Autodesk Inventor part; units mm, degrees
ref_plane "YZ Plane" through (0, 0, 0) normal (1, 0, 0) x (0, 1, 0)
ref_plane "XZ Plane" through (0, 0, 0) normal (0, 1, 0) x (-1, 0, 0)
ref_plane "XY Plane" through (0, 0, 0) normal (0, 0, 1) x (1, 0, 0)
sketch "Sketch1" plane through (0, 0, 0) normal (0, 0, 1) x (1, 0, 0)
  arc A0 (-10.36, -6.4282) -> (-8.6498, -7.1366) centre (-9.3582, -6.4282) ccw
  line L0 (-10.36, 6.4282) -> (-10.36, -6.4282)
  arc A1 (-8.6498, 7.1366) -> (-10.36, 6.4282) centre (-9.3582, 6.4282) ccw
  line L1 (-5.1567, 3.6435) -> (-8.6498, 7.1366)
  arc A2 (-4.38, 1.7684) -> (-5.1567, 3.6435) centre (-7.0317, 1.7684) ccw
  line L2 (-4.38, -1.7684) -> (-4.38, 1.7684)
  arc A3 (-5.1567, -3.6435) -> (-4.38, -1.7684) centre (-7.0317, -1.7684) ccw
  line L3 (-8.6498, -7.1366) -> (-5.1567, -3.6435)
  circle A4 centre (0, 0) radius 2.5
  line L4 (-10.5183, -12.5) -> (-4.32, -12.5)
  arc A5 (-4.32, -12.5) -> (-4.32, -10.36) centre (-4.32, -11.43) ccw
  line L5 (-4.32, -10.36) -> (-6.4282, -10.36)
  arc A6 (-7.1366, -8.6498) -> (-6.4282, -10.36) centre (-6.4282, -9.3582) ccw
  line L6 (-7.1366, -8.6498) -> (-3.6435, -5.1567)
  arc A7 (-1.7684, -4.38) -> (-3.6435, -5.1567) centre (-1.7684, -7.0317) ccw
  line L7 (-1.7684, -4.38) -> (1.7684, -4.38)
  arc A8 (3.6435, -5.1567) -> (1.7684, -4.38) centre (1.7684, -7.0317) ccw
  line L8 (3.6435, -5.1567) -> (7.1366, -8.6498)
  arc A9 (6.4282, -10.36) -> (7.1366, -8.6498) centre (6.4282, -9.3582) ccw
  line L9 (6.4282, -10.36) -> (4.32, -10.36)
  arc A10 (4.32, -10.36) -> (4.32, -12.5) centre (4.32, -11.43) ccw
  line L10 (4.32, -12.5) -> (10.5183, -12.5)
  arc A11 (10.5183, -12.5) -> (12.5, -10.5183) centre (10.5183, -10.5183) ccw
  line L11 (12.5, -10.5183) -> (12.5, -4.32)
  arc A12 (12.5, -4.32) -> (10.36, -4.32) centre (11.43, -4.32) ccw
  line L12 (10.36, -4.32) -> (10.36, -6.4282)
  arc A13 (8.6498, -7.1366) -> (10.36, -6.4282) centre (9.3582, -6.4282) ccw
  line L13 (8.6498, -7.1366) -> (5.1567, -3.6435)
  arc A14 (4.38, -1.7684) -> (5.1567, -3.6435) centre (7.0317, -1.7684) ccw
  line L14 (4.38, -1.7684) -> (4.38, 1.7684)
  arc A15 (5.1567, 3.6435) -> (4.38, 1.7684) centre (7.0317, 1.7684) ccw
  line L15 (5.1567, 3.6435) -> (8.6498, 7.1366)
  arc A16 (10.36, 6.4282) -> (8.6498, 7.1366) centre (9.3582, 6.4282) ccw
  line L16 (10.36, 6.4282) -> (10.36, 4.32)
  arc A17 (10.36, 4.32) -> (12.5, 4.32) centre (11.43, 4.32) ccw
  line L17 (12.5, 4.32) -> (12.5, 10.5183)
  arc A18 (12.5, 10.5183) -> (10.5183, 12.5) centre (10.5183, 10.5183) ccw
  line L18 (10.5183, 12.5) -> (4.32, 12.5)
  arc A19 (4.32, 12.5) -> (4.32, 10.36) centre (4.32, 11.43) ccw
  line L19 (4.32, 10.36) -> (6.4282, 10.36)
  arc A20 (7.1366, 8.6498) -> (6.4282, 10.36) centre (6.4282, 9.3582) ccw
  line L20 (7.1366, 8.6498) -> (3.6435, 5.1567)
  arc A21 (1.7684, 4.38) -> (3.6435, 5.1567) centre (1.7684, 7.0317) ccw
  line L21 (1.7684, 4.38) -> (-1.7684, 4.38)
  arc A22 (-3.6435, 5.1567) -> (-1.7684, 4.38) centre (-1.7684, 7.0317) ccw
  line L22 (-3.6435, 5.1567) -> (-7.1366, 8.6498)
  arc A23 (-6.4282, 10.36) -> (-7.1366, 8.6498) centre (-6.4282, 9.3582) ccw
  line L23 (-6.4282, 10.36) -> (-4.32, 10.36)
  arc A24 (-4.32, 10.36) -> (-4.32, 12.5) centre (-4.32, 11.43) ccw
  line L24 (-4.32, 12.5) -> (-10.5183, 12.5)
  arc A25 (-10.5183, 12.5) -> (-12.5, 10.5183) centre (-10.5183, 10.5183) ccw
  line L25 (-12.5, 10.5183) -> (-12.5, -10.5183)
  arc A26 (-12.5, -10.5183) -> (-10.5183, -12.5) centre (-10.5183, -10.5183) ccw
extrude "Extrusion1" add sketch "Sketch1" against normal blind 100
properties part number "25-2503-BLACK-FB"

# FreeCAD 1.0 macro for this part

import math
import FreeCAD as App
import Part
import Sketcher
from FreeCAD import Vector
Q = App.Units.Quantity

doc = App.newDocument("Part")
body = doc.addObject("PartDesign::Body", "Body")

# Sketch on XY plane
sketch1 = body.newObject("Sketcher::SketchObject", "Sketch")
sketch1.AttachmentSupport = (doc.getObject("XY_Plane"), [""])
sketch1.MapMode = "FlatFace"
sketch1.addGeometry(Part.ArcOfCircle(Part.Circle(Vector(-10.5183, -10.5183, 0), Vector(0, 0, 1), 1.9817), math.radians(180), math.radians(270)), False)
sketch1.addGeometry(Part.LineSegment(Vector(-10.5183, -12.5, 0), Vector(-4.32, -12.5, 0)), False)
sketch1.addGeometry(Part.ArcOfCircle(Part.Circle(Vector(-4.32, -11.43, 0), Vector(0, 0, 1), 1.07), math.radians(-90), math.radians(90)), False)
sketch1.addGeometry(Part.LineSegment(Vector(-4.32, -10.36, 0), Vector(-6.4282, -10.36, 0)), False)
sketch1.addGeometry(Part.ArcOfCircle(Part.Circle(Vector(-6.4282, -9.3582, 0), Vector(0, 0, 1), 1.001829), math.radians(135), math.radians(270)), False)
sketch1.addGeometry(Part.LineSegment(Vector(-7.1366, -8.6498, 0), Vector(-3.6435, -5.1567, 0)), False)
sketch1.addGeometry(Part.ArcOfCircle(Part.Circle(Vector(-1.7684, -7.0317, 0), Vector(0, 0, 1), 2.6517), math.radians(90), math.radians(135.001528)), False)
sketch1.addGeometry(Part.LineSegment(Vector(-1.7684, -4.38, 0), Vector(1.7684, -4.38, 0)), False)
sketch1.addGeometry(Part.ArcOfCircle(Part.Circle(Vector(1.7684, -7.0317, 0), Vector(0, 0, 1), 2.651721), math.radians(44.998472), math.radians(90)), False)
sketch1.addGeometry(Part.LineSegment(Vector(3.6435, -5.1567, 0), Vector(7.1366, -8.6498, 0)), False)
sketch1.addGeometry(Part.ArcOfCircle(Part.Circle(Vector(6.4282, -9.3582, 0), Vector(0, 0, 1), 1.0018), math.radians(-90), math.radians(45)), False)
sketch1.addGeometry(Part.LineSegment(Vector(6.4282, -10.36, 0), Vector(4.32, -10.36, 0)), False)
sketch1.addGeometry(Part.ArcOfCircle(Part.Circle(Vector(4.32, -11.43, 0), Vector(0, 0, 1), 1.07), math.radians(90), math.radians(270)), False)
sketch1.addGeometry(Part.LineSegment(Vector(4.32, -12.5, 0), Vector(10.5183, -12.5, 0)), False)
sketch1.addGeometry(Part.ArcOfCircle(Part.Circle(Vector(10.5183, -10.5183, 0), Vector(0, 0, 1), 1.9817), math.radians(-90), math.radians(0)), False)
sketch1.addGeometry(Part.LineSegment(Vector(12.5, -10.5183, 0), Vector(12.5, -4.32, 0)), False)
sketch1.addGeometry(Part.ArcOfCircle(Part.Circle(Vector(11.43, -4.32, 0), Vector(0, 0, 1), 1.07), math.radians(0), math.radians(180)), False)
sketch1.addGeometry(Part.LineSegment(Vector(10.36, -4.32, 0), Vector(10.36, -6.4282, 0)), False)
sketch1.addGeometry(Part.ArcOfCircle(Part.Circle(Vector(9.3582, -6.4282, 0), Vector(0, 0, 1), 1.001829), math.radians(-135), math.radians(0)), False)
sketch1.addGeometry(Part.LineSegment(Vector(8.6498, -7.1366, 0), Vector(5.1567, -3.6435, 0)), False)
sketch1.addGeometry(Part.ArcOfCircle(Part.Circle(Vector(7.0317, -1.7684, 0), Vector(0, 0, 1), 2.6517), math.radians(180), math.radians(225.001528)), False)
sketch1.addGeometry(Part.LineSegment(Vector(4.38, -1.7684, 0), Vector(4.38, 1.7684, 0)), False)
sketch1.addGeometry(Part.ArcOfCircle(Part.Circle(Vector(7.0317, 1.7684, 0), Vector(0, 0, 1), 2.651721), math.radians(134.998472), math.radians(180)), False)
sketch1.addGeometry(Part.LineSegment(Vector(5.1567, 3.6435, 0), Vector(8.6498, 7.1366, 0)), False)
sketch1.addGeometry(Part.ArcOfCircle(Part.Circle(Vector(9.3582, 6.4282, 0), Vector(0, 0, 1), 1.0018), math.radians(0), math.radians(135)), False)
sketch1.addGeometry(Part.LineSegment(Vector(10.36, 6.4282, 0), Vector(10.36, 4.32, 0)), False)
sketch1.addGeometry(Part.ArcOfCircle(Part.Circle(Vector(11.43, 4.32, 0), Vector(0, 0, 1), 1.07), math.radians(180), math.radians(360)), False)
sketch1.addGeometry(Part.LineSegment(Vector(12.5, 4.32, 0), Vector(12.5, 10.5183, 0)), False)
sketch1.addGeometry(Part.ArcOfCircle(Part.Circle(Vector(10.5183, 10.5183, 0), Vector(0, 0, 1), 1.9817), math.radians(0), math.radians(90)), False)
sketch1.addGeometry(Part.LineSegment(Vector(10.5183, 12.5, 0), Vector(4.32, 12.5, 0)), False)
sketch1.addGeometry(Part.ArcOfCircle(Part.Circle(Vector(4.32, 11.43, 0), Vector(0, 0, 1), 1.07), math.radians(90), math.radians(270)), False)
sketch1.addGeometry(Part.LineSegment(Vector(4.32, 10.36, 0), Vector(6.4282, 10.36, 0)), False)
sketch1.addGeometry(Part.ArcOfCircle(Part.Circle(Vector(6.4282, 9.3582, 0), Vector(0, 0, 1), 1.001829), math.radians(-45), math.radians(90)), False)
sketch1.addGeometry(Part.LineSegment(Vector(7.1366, 8.6498, 0), Vector(3.6435, 5.1567, 0)), False)
sketch1.addGeometry(Part.ArcOfCircle(Part.Circle(Vector(1.7684, 7.0317, 0), Vector(0, 0, 1), 2.6517), math.radians(-90), math.radians(-44.998472)), False)
sketch1.addGeometry(Part.LineSegment(Vector(1.7684, 4.38, 0), Vector(-1.7684, 4.38, 0)), False)
sketch1.addGeometry(Part.ArcOfCircle(Part.Circle(Vector(-1.7684, 7.0317, 0), Vector(0, 0, 1), 2.651721), math.radians(-135.001528), math.radians(-90)), False)
sketch1.addGeometry(Part.LineSegment(Vector(-3.6435, 5.1567, 0), Vector(-7.1366, 8.6498, 0)), False)
sketch1.addGeometry(Part.ArcOfCircle(Part.Circle(Vector(-6.4282, 9.3582, 0), Vector(0, 0, 1), 1.0018), math.radians(90), math.radians(225)), False)
sketch1.addGeometry(Part.LineSegment(Vector(-6.4282, 10.36, 0), Vector(-4.32, 10.36, 0)), False)
sketch1.addGeometry(Part.ArcOfCircle(Part.Circle(Vector(-4.32, 11.43, 0), Vector(0, 0, 1), 1.07), math.radians(-90), math.radians(90)), False)
sketch1.addGeometry(Part.LineSegment(Vector(-4.32, 12.5, 0), Vector(-10.5183, 12.5, 0)), False)
sketch1.addGeometry(Part.ArcOfCircle(Part.Circle(Vector(-10.5183, 10.5183, 0), Vector(0, 0, 1), 1.9817), math.radians(90), math.radians(180)), False)
sketch1.addGeometry(Part.LineSegment(Vector(-12.5, 10.5183, 0), Vector(-12.5, -10.5183, 0)), False)
sketch1.addGeometry(Part.ArcOfCircle(Part.Circle(Vector(-9.3582, -6.4282, 0), Vector(0, 0, 1), 1.0018), math.radians(180), math.radians(315)), False)
sketch1.addGeometry(Part.LineSegment(Vector(-10.36, -6.4282, 0), Vector(-10.36, 6.4282, 0)), False)
sketch1.addGeometry(Part.ArcOfCircle(Part.Circle(Vector(-9.3582, 6.4282, 0), Vector(0, 0, 1), 1.001829), math.radians(45), math.radians(180)), False)
sketch1.addGeometry(Part.LineSegment(Vector(-8.6498, 7.1366, 0), Vector(-5.1567, 3.6435, 0)), False)
sketch1.addGeometry(Part.ArcOfCircle(Part.Circle(Vector(-7.0317, 1.7684, 0), Vector(0, 0, 1), 2.6517), math.radians(0), math.radians(45.001528)), False)
sketch1.addGeometry(Part.LineSegment(Vector(-4.38, 1.7684, 0), Vector(-4.38, -1.7684, 0)), False)
sketch1.addGeometry(Part.ArcOfCircle(Part.Circle(Vector(-7.0317, -1.7684, 0), Vector(0, 0, 1), 2.651721), math.radians(-45.001528), math.radians(0)), False)
sketch1.addGeometry(Part.LineSegment(Vector(-5.1567, -3.6435, 0), Vector(-8.6498, -7.1366, 0)), False)
sketch1.addGeometry(Part.Circle(Vector(0, 0, 0), Vector(0, 0, 1), 2.5), False)
sketch1.addConstraint(Sketcher.Constraint("Tangent", 0, 2, 1, 1))
sketch1.addConstraint(Sketcher.Constraint("Tangent", 1, 2, 2, 1))
sketch1.addConstraint(Sketcher.Constraint("Tangent", 2, 2, 3, 1))
sketch1.addConstraint(Sketcher.Constraint("Tangent", 3, 2, 4, 2))
sketch1.addConstraint(Sketcher.Constraint("Tangent", 4, 1, 5, 1))
sketch1.addConstraint(Sketcher.Constraint("Tangent", 5, 2, 6, 2))
sketch1.addConstraint(Sketcher.Constraint("Tangent", 6, 1, 7, 1))
sketch1.addConstraint(Sketcher.Constraint("Tangent", 7, 2, 8, 2))
sketch1.addConstraint(Sketcher.Constraint("Tangent", 8, 1, 9, 1))
sketch1.addConstraint(Sketcher.Constraint("Tangent", 9, 2, 10, 2))
sketch1.addConstraint(Sketcher.Constraint("Tangent", 10, 1, 11, 1))
sketch1.addConstraint(Sketcher.Constraint("Tangent", 11, 2, 12, 1))
sketch1.addConstraint(Sketcher.Constraint("Tangent", 12, 2, 13, 1))
sketch1.addConstraint(Sketcher.Constraint("Tangent", 13, 2, 14, 1))
sketch1.addConstraint(Sketcher.Constraint("Tangent", 14, 2, 15, 1))
sketch1.addConstraint(Sketcher.Constraint("Tangent", 15, 2, 16, 1))
sketch1.addConstraint(Sketcher.Constraint("Tangent", 16, 2, 17, 1))
sketch1.addConstraint(Sketcher.Constraint("Tangent", 17, 2, 18, 2))
sketch1.addConstraint(Sketcher.Constraint("Tangent", 18, 1, 19, 1))
sketch1.addConstraint(Sketcher.Constraint("Tangent", 19, 2, 20, 2))
sketch1.addConstraint(Sketcher.Constraint("Tangent", 20, 1, 21, 1))
sketch1.addConstraint(Sketcher.Constraint("Tangent", 21, 2, 22, 2))
sketch1.addConstraint(Sketcher.Constraint("Tangent", 22, 1, 23, 1))
sketch1.addConstraint(Sketcher.Constraint("Tangent", 23, 2, 24, 2))
sketch1.addConstraint(Sketcher.Constraint("Tangent", 24, 1, 25, 1))
sketch1.addConstraint(Sketcher.Constraint("Tangent", 25, 2, 26, 1))
sketch1.addConstraint(Sketcher.Constraint("Tangent", 26, 2, 27, 1))
sketch1.addConstraint(Sketcher.Constraint("Tangent", 27, 2, 28, 1))
sketch1.addConstraint(Sketcher.Constraint("Tangent", 28, 2, 29, 1))
sketch1.addConstraint(Sketcher.Constraint("Tangent", 29, 2, 30, 1))
sketch1.addConstraint(Sketcher.Constraint("Tangent", 30, 2, 31, 1))
sketch1.addConstraint(Sketcher.Constraint("Tangent", 31, 2, 32, 2))
sketch1.addConstraint(Sketcher.Constraint("Tangent", 32, 1, 33, 1))
sketch1.addConstraint(Sketcher.Constraint("Tangent", 33, 2, 34, 2))
sketch1.addConstraint(Sketcher.Constraint("Tangent", 34, 1, 35, 1))
sketch1.addConstraint(Sketcher.Constraint("Tangent", 35, 2, 36, 2))
sketch1.addConstraint(Sketcher.Constraint("Tangent", 36, 1, 37, 1))
sketch1.addConstraint(Sketcher.Constraint("Tangent", 37, 2, 38, 2))
sketch1.addConstraint(Sketcher.Constraint("Tangent", 38, 1, 39, 1))
sketch1.addConstraint(Sketcher.Constraint("Tangent", 39, 2, 40, 1))
sketch1.addConstraint(Sketcher.Constraint("Tangent", 40, 2, 41, 1))
sketch1.addConstraint(Sketcher.Constraint("Tangent", 41, 2, 42, 1))
sketch1.addConstraint(Sketcher.Constraint("Tangent", 42, 2, 43, 1))
sketch1.addConstraint(Sketcher.Constraint("Tangent", 43, 2, 0, 1))
sketch1.addConstraint(Sketcher.Constraint("Tangent", 44, 1, 45, 1))
sketch1.addConstraint(Sketcher.Constraint("Tangent", 45, 2, 46, 2))
sketch1.addConstraint(Sketcher.Constraint("Tangent", 46, 1, 47, 1))
sketch1.addConstraint(Sketcher.Constraint("Tangent", 47, 2, 48, 2))
sketch1.addConstraint(Sketcher.Constraint("Tangent", 48, 1, 49, 1))
sketch1.addConstraint(Sketcher.Constraint("Tangent", 49, 2, 50, 2))
sketch1.addConstraint(Sketcher.Constraint("Tangent", 50, 1, 51, 1))
sketch1.addConstraint(Sketcher.Constraint("Tangent", 51, 2, 44, 2))
sketch1.addConstraint(Sketcher.Constraint("Horizontal", 1))
sketch1.addConstraint(Sketcher.Constraint("Horizontal", 3))
sketch1.addConstraint(Sketcher.Constraint("Horizontal", 7))
sketch1.addConstraint(Sketcher.Constraint("Horizontal", 11))
sketch1.addConstraint(Sketcher.Constraint("Horizontal", 13))
sketch1.addConstraint(Sketcher.Constraint("Vertical", 15))
sketch1.addConstraint(Sketcher.Constraint("Vertical", 17))
sketch1.addConstraint(Sketcher.Constraint("Vertical", 21))
sketch1.addConstraint(Sketcher.Constraint("Vertical", 25))
sketch1.addConstraint(Sketcher.Constraint("Vertical", 27))
sketch1.addConstraint(Sketcher.Constraint("Horizontal", 29))
sketch1.addConstraint(Sketcher.Constraint("Horizontal", 31))
sketch1.addConstraint(Sketcher.Constraint("Horizontal", 35))
sketch1.addConstraint(Sketcher.Constraint("Horizontal", 39))
sketch1.addConstraint(Sketcher.Constraint("Horizontal", 41))
sketch1.addConstraint(Sketcher.Constraint("Vertical", 43))
sketch1.addConstraint(Sketcher.Constraint("Vertical", 45))
sketch1.addConstraint(Sketcher.Constraint("Vertical", 49))
sketch1.addConstraint(Sketcher.Constraint("Coincident", 52, 3, -1, 1))
sketch1.addConstraint(Sketcher.Constraint("Equal", 6, 8))
sketch1.addConstraint(Sketcher.Constraint("Equal", 4, 10))
sketch1.addConstraint(Sketcher.Constraint("Equal", 2, 12))
sketch1.addConstraint(Sketcher.Constraint("Equal", 0, 14))
sketch1.addConstraint(Sketcher.Constraint("Equal", 12, 16))
sketch1.addConstraint(Sketcher.Constraint("Equal", 10, 18))
sketch1.addConstraint(Sketcher.Constraint("Equal", 8, 20))
sketch1.addConstraint(Sketcher.Constraint("Equal", 20, 22))
sketch1.addConstraint(Sketcher.Constraint("Equal", 18, 24))
sketch1.addConstraint(Sketcher.Constraint("Equal", 16, 26))
sketch1.addConstraint(Sketcher.Constraint("Equal", 14, 28))
sketch1.addConstraint(Sketcher.Constraint("Equal", 26, 30))
sketch1.addConstraint(Sketcher.Constraint("Equal", 24, 32))
sketch1.addConstraint(Sketcher.Constraint("Equal", 22, 34))
sketch1.addConstraint(Sketcher.Constraint("Equal", 34, 36))
sketch1.addConstraint(Sketcher.Constraint("Equal", 32, 38))
sketch1.addConstraint(Sketcher.Constraint("Equal", 30, 40))
sketch1.addConstraint(Sketcher.Constraint("Equal", 28, 42))
sketch1.addConstraint(Sketcher.Constraint("Equal", 38, 44))
sketch1.addConstraint(Sketcher.Constraint("Equal", 44, 46))
sketch1.addConstraint(Sketcher.Constraint("Equal", 36, 48))
sketch1.addConstraint(Sketcher.Constraint("Equal", 48, 50))
sketch1.addConstraint(Sketcher.Constraint("Symmetric", 0, 3, 28, 3, -1, 1))
sketch1.addConstraint(Sketcher.Constraint("Symmetric", 6, 3, 34, 3, -1, 1))
sketch1.addConstraint(Sketcher.Constraint("Symmetric", 10, 3, 38, 3, -1, 1))
sketch1.addConstraint(Sketcher.Constraint("Symmetric", 24, 3, 44, 3, -1, 1))
sketch1.addConstraint(Sketcher.Constraint("Symmetric", 18, 3, 46, 3, -1, 1))
sketch1.addConstraint(Sketcher.Constraint("Symmetric", 20, 3, 48, 3, -1, 1))
sketch1.addConstraint(Sketcher.Constraint("Symmetric", 4, 3, 10, 3, -2))
sketch1.addConstraint(Sketcher.Constraint("Symmetric", 33, 2, 36, 1, -2))
sketch1.addConstraint(Sketcher.Constraint("Symmetric", 23, 2, 46, 1, -2))
sketch1.addConstraint(Sketcher.Constraint("Perpendicular", 5, 9))
sketch1.addConstraint(Sketcher.Constraint("Parallel", 9, 19))
sketch1.addConstraint(Sketcher.Constraint("Perpendicular", 19, 23))
sketch1.addConstraint(Sketcher.Constraint("Perpendicular", 47, 51))
sketch1.addConstraint(Sketcher.Constraint("Vertical", 12, 3, 30, 3))
sketch1.addConstraint(Sketcher.Constraint("Vertical", 2, 3, 40, 3))
sketch1.addConstraint(Sketcher.Constraint("Equal", 3, 11))
sketch1.addConstraint(Sketcher.Constraint("Equal", 41, 15))
sketch1.addConstraint(Sketcher.Constraint("Equal", 39, 17))
sketch1.addConstraint(Sketcher.Constraint("Equal", 35, 21))
sketch1.addConstraint(Sketcher.Constraint("Equal", 17, 25))
sketch1.addConstraint(Sketcher.Constraint("Equal", 9, 19))
sketch1.addConstraint(Sketcher.Constraint("Radius", 6, Q("0.1044 in")))
sketch1.addConstraint(Sketcher.Constraint("Diameter", 52, Q("5 mm")))
sketch1.addConstraint(Sketcher.Constraint("DistanceX", 3, 2, 3, 1, Q("0.083 in")))
sketch1.addConstraint(Sketcher.Constraint("DistanceY", 2, 3, -1, 1, Q("0.45 in")))
sketch1.addConstraint(Sketcher.Constraint("Radius", 0, Q("1.9817 mm")))
sketch1.addConstraint(Sketcher.Constraint("Radius", 2, Q("1.07 mm")))
sketch1.addConstraint(Sketcher.Constraint("Radius", 4, Q("1.0018 mm")))
sketch1.addConstraint(Sketcher.Constraint("DistanceX", 1, 1, 1, 2, Q("6.1983 mm")))
sketch1.addConstraint(Sketcher.Constraint("DistanceX", 7, 1, 7, 2, Q("3.5368 mm")))
pad1 = body.newObject("PartDesign::Pad", "Pad")
pad1.Profile = sketch1
pad1.Length = Q("3.9370079 in")
pad1.Reversed = True

doc.recompute()
